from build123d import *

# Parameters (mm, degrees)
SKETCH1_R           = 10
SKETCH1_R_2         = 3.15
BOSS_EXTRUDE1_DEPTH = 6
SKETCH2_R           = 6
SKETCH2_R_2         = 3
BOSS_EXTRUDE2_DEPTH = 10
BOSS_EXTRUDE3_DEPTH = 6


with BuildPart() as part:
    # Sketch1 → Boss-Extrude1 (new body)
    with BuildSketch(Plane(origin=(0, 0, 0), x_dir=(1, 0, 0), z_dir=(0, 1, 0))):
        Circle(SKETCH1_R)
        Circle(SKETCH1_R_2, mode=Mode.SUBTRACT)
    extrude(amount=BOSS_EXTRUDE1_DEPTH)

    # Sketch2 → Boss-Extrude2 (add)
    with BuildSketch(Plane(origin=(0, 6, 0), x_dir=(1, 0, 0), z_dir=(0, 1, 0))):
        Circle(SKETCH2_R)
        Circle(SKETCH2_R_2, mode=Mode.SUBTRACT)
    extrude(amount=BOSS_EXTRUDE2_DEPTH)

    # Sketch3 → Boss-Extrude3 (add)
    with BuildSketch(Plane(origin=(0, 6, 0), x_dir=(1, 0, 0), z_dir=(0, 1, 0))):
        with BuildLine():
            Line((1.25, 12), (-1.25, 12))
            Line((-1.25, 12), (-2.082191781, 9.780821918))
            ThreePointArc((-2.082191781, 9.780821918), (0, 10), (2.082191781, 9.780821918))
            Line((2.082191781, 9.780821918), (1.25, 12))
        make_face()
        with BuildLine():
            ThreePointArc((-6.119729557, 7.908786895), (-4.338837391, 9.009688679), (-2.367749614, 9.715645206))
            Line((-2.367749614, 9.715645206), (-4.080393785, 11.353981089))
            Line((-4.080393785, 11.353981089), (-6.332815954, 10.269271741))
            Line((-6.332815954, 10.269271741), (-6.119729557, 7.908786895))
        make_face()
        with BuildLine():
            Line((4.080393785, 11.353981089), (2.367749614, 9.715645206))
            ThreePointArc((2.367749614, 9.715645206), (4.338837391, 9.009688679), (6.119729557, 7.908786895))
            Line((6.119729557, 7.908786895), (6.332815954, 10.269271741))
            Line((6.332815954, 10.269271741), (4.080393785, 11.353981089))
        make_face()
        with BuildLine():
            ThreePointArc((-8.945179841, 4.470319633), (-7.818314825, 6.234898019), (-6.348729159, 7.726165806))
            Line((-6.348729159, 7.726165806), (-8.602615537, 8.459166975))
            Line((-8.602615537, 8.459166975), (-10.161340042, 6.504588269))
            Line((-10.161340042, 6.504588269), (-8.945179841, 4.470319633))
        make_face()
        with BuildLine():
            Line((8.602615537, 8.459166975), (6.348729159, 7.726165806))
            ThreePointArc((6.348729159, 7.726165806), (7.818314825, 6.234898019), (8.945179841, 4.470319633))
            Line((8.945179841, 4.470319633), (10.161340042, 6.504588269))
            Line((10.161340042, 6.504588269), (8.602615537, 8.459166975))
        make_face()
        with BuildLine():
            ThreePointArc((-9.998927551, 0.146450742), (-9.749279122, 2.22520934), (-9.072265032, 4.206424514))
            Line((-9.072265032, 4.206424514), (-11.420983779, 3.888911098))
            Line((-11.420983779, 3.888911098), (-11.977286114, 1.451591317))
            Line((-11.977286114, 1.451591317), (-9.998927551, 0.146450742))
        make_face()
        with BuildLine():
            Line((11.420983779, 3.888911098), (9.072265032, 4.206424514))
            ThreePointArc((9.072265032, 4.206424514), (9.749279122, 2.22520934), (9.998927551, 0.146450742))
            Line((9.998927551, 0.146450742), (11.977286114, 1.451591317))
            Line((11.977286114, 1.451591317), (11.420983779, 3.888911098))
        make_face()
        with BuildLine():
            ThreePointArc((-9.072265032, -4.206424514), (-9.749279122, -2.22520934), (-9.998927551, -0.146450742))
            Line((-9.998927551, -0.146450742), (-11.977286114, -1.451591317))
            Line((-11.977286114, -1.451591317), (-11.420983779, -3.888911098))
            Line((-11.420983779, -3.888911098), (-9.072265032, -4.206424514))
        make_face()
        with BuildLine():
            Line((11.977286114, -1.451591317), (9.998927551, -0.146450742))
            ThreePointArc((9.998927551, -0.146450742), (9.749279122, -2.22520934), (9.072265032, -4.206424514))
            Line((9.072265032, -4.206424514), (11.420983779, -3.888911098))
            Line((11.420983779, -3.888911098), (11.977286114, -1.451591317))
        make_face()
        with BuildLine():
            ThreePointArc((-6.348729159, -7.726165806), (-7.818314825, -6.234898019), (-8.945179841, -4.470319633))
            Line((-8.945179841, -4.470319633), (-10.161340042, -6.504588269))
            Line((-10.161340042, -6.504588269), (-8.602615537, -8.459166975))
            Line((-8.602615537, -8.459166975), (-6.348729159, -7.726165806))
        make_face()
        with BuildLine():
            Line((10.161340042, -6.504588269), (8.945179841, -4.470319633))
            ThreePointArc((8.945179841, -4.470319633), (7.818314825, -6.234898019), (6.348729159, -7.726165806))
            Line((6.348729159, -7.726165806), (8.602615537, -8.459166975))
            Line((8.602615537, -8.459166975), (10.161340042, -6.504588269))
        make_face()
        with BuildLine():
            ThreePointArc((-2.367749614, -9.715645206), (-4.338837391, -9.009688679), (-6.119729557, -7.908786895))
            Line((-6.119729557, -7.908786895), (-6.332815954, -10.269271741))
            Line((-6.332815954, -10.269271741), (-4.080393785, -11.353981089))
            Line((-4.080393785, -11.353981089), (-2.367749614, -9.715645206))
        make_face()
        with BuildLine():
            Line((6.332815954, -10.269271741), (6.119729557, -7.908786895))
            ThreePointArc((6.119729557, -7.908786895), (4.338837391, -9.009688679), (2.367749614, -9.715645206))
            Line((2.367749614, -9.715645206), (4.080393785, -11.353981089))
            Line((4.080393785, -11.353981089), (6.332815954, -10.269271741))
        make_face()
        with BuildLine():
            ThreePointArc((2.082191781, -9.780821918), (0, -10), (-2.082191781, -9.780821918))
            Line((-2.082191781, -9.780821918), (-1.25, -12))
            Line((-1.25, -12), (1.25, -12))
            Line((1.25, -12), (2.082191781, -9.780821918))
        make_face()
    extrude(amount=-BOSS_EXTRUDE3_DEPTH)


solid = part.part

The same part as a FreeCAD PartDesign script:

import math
import FreeCAD as App
import Part
import Sketcher
from FreeCAD import Vector

doc = App.newDocument("Part")
body = doc.addObject("PartDesign::Body", "Body")

# Sketch on XZ plane
sketch1 = body.newObject("Sketcher::SketchObject", "Sketch")
sketch1.AttachmentSupport = (doc.getObject("XZ_Plane"), [""])
sketch1.MapMode = "FlatFace"
sketch1.addGeometry([
    Part.Circle(Vector(0, 0, 0), Vector(0, 0, 1), 10),
    Part.Circle(Vector(0, 0, 0), Vector(0, 0, 1), 3.1),
], False)
sketch1.addConstraint([
    Sketcher.Constraint("Coincident", 0, 3, -1, 1),
    Sketcher.Constraint("Coincident", 1, 3, -1, 1),
    Sketcher.Constraint("Diameter", 0, 20.0),
    Sketcher.Constraint("Diameter", 1, 6.3),
])
pad1 = body.newObject("PartDesign::Pad", "Pad")
pad1.Profile = sketch1
pad1.Length = 6
pad1.Reversed = True

# Sketch on XZ plane
sketch2 = body.newObject("Sketcher::SketchObject", "Sketch001")
sketch2.AttachmentSupport = (doc.getObject("XZ_Plane"), [""])
sketch2.MapMode = "FlatFace"
sketch2.AttachmentOffset = App.Placement(Vector(0, 0, -6), App.Rotation())
sketch2.addGeometry([
    Part.Circle(Vector(0, 0, 0), Vector(0, 0, 1), 6),
    Part.Circle(Vector(0, 0, 0), Vector(0, 0, 1), 3),
], False)
sketch2.addConstraint([
    Sketcher.Constraint("Coincident", 0, 3, -1, 1),
    Sketcher.Constraint("Coincident", 1, 3, -1, 1),
    Sketcher.Constraint("Diameter", 0, 12.0),
    Sketcher.Constraint("Diameter", 1, 6.0),
])
pad2 = body.newObject("PartDesign::Pad", "Pad001")
pad2.Profile = sketch2
pad2.Length = 10
pad2.Reversed = True

# Sketch on XZ plane
sketch3 = body.newObject("Sketcher::SketchObject", "Sketch002")
sketch3.AttachmentSupport = (doc.getObject("XZ_Plane"), [""])
sketch3.MapMode = "FlatFace"
sketch3.AttachmentOffset = App.Placement(Vector(0, 0, -6), App.Rotation())
sketch3.addGeometry([
    Part.LineSegment(Vector(1.2, -12, 0), Vector(-1.2, -12, 0)),  # 0
    Part.LineSegment(Vector(-1.2, -12, 0), Vector(-2.1, -9.8, 0)),  # 1
    Part.ArcOfCircle(Part.Circle(Vector(0, 0, 0), Vector(0, 0, 1), 10), math.radians(-102), math.radians(-78)),  # 2
    Part.LineSegment(Vector(2.1, -9.8, 0), Vector(1.2, -12, 0)),  # 3
    Part.ArcOfCircle(Part.Circle(Vector(0, 0, 0), Vector(0, 0, 1), 10), math.radians(-128), math.radians(-104)),  # 4
    Part.LineSegment(Vector(-2.4, -9.7, 0), Vector(-4.1, -11.4, 0)),  # 5
    Part.LineSegment(Vector(-4.1, -11.4, 0), Vector(-6.3, -10.3, 0)),  # 6
    Part.LineSegment(Vector(-6.3, -10.3, 0), Vector(-6.1, -7.9, 0)),  # 7
    Part.LineSegment(Vector(4.1, -11.4, 0), Vector(2.4, -9.7, 0)),  # 8
    Part.ArcOfCircle(Part.Circle(Vector(0, 0, 0), Vector(0, 0, 1), 10), math.radians(-76), math.radians(-52)),  # 9
    Part.LineSegment(Vector(6.1, -7.9, 0), Vector(6.3, -10.3, 0)),  # 10
    Part.LineSegment(Vector(6.3, -10.3, 0), Vector(4.1, -11.4, 0)),  # 11
    Part.ArcOfCircle(Part.Circle(Vector(0, 0, 0), Vector(0, 0, 1), 10), math.radians(-153), math.radians(-129)),  # 12
    Part.LineSegment(Vector(-6.3, -7.7, 0), Vector(-8.6, -8.5, 0)),  # 13
    Part.LineSegment(Vector(-8.6, -8.5, 0), Vector(-10.2, -6.5, 0)),  # 14
    Part.LineSegment(Vector(-10.2, -6.5, 0), Vector(-8.9, -4.5, 0)),  # 15
    Part.LineSegment(Vector(8.6, -8.5, 0), Vector(6.3, -7.7, 0)),  # 16
    Part.ArcOfCircle(Part.Circle(Vector(0, 0, 0), Vector(0, 0, 1), 10), math.radians(-51), math.radians(-27)),  # 17
    Part.LineSegment(Vector(8.9, -4.5, 0), Vector(10.2, -6.5, 0)),  # 18
    Part.LineSegment(Vector(10.2, -6.5, 0), Vector(8.6, -8.5, 0)),  # 19
    Part.ArcOfCircle(Part.Circle(Vector(0, 0, 0), Vector(0, 0, 1), 10), math.radians(-179), math.radians(-155)),  # 20
    Part.LineSegment(Vector(-9.1, -4.2, 0), Vector(-11.4, -3.9, 0)),  # 21
    Part.LineSegment(Vector(-11.4, -3.9, 0), Vector(-12, -1.5, 0)),  # 22
    Part.LineSegment(Vector(-12, -1.5, 0), Vector(-10, -0.1, 0)),  # 23
    Part.LineSegment(Vector(11.4, -3.9, 0), Vector(9.1, -4.2, 0)),  # 24
    Part.ArcOfCircle(Part.Circle(Vector(0, 0, 0), Vector(0, 0, 1), 10), math.radians(-25), math.radians(-1)),  # 25
    Part.LineSegment(Vector(10, -0.1, 0), Vector(12, -1.5, 0)),  # 26
    Part.LineSegment(Vector(12, -1.5, 0), Vector(11.4, -3.9, 0)),  # 27
    Part.ArcOfCircle(Part.Circle(Vector(0, 0, 0), Vector(0, 0, 1), 10), math.radians(155), math.radians(179)),  # 28
    Part.LineSegment(Vector(-10, 0.1, 0), Vector(-12, 1.5, 0)),  # 29
    Part.LineSegment(Vector(-12, 1.5, 0), Vector(-11.4, 3.9, 0)),  # 30
    Part.LineSegment(Vector(-11.4, 3.9, 0), Vector(-9.1, 4.2, 0)),  # 31
    Part.LineSegment(Vector(12, 1.5, 0), Vector(10, 0.1, 0)),  # 32
    Part.ArcOfCircle(Part.Circle(Vector(0, 0, 0), Vector(0, 0, 1), 10), math.radians(1), math.radians(25)),  # 33
    Part.LineSegment(Vector(9.1, 4.2, 0), Vector(11.4, 3.9, 0)),  # 34
    Part.LineSegment(Vector(11.4, 3.9, 0), Vector(12, 1.5, 0)),  # 35
    Part.ArcOfCircle(Part.Circle(Vector(0, 0, 0), Vector(0, 0, 1), 10), math.radians(129), math.radians(153)),  # 36
    Part.LineSegment(Vector(-8.9, 4.5, 0), Vector(-10.2, 6.5, 0)),  # 37
    Part.LineSegment(Vector(-10.2, 6.5, 0), Vector(-8.6, 8.5, 0)),  # 38
    Part.LineSegment(Vector(-8.6, 8.5, 0), Vector(-6.3, 7.7, 0)),  # 39
    Part.LineSegment(Vector(10.2, 6.5, 0), Vector(8.9, 4.5, 0)),  # 40
    Part.ArcOfCircle(Part.Circle(Vector(0, 0, 0), Vector(0, 0, 1), 10), math.radians(27), math.radians(51)),  # 41
    Part.LineSegment(Vector(6.3, 7.7, 0), Vector(8.6, 8.5, 0)),  # 42
    Part.LineSegment(Vector(8.6, 8.5, 0), Vector(10.2, 6.5, 0)),  # 43
    Part.ArcOfCircle(Part.Circle(Vector(0, 0, 0), Vector(0, 0, 1), 10), math.radians(104), math.radians(128)),  # 44
    Part.LineSegment(Vector(-6.1, 7.9, 0), Vector(-6.3, 10.3, 0)),  # 45
    Part.LineSegment(Vector(-6.3, 10.3, 0), Vector(-4.1, 11.4, 0)),  # 46
    Part.LineSegment(Vector(-4.1, 11.4, 0), Vector(-2.4, 9.7, 0)),  # 47
    Part.LineSegment(Vector(6.3, 10.3, 0), Vector(6.1, 7.9, 0)),  # 48
    Part.ArcOfCircle(Part.Circle(Vector(0, 0, 0), Vector(0, 0, 1), 10), math.radians(52), math.radians(76)),  # 49
    Part.LineSegment(Vector(2.4, 9.7, 0), Vector(4.1, 11.4, 0)),  # 50
    Part.LineSegment(Vector(4.1, 11.4, 0), Vector(6.3, 10.3, 0)),  # 51
    Part.ArcOfCircle(Part.Circle(Vector(0, 0, 0), Vector(0, 0, 1), 10), math.radians(78), math.radians(102)),  # 52
    Part.LineSegment(Vector(-2.1, 9.8, 0), Vector(-1.2, 12, 0)),  # 53
    Part.LineSegment(Vector(-1.2, 12, 0), Vector(1.2, 12, 0)),  # 54
    Part.LineSegment(Vector(1.2, 12, 0), Vector(2.1, 9.8, 0)),  # 55
], False)
sketch3.addConstraint([
    Sketcher.Constraint("Coincident", 0, 2, 1, 1),
    Sketcher.Constraint("Coincident", 1, 2, 2, 1),
    Sketcher.Constraint("Coincident", 2, 2, 3, 1),
    Sketcher.Constraint("Coincident", 3, 2, 0, 1),
    Sketcher.Constraint("Coincident", 4, 2, 5, 1),
    Sketcher.Constraint("Coincident", 5, 2, 6, 1),
    Sketcher.Constraint("Coincident", 6, 2, 7, 1),
    Sketcher.Constraint("Coincident", 7, 2, 4, 1),
    Sketcher.Constraint("Coincident", 8, 2, 9, 1),
    Sketcher.Constraint("Coincident", 9, 2, 10, 1),
    Sketcher.Constraint("Coincident", 10, 2, 11, 1),
    Sketcher.Constraint("Coincident", 11, 2, 8, 1),
    Sketcher.Constraint("Coincident", 12, 2, 13, 1),
    Sketcher.Constraint("Coincident", 13, 2, 14, 1),
    Sketcher.Constraint("Coincident", 14, 2, 15, 1),
    Sketcher.Constraint("Coincident", 15, 2, 12, 1),
    Sketcher.Constraint("Coincident", 16, 2, 17, 1),
    Sketcher.Constraint("Coincident", 17, 2, 18, 1),
    Sketcher.Constraint("Coincident", 18, 2, 19, 1),
    Sketcher.Constraint("Coincident", 19, 2, 16, 1),
    Sketcher.Constraint("Coincident", 20, 2, 21, 1),
    Sketcher.Constraint("Coincident", 21, 2, 22, 1),
    Sketcher.Constraint("Coincident", 22, 2, 23, 1),
    Sketcher.Constraint("Coincident", 23, 2, 20, 1),
    Sketcher.Constraint("Coincident", 24, 2, 25, 1),
    Sketcher.Constraint("Coincident", 25, 2, 26, 1),
    Sketcher.Constraint("Coincident", 26, 2, 27, 1),
    Sketcher.Constraint("Coincident", 27, 2, 24, 1),
    Sketcher.Constraint("Coincident", 28, 2, 29, 1),
    Sketcher.Constraint("Coincident", 29, 2, 30, 1),
    Sketcher.Constraint("Coincident", 30, 2, 31, 1),
    Sketcher.Constraint("Coincident", 31, 2, 28, 1),
    Sketcher.Constraint("Coincident", 32, 2, 33, 1),
    Sketcher.Constraint("Coincident", 33, 2, 34, 1),
    Sketcher.Constraint("Coincident", 34, 2, 35, 1),
    Sketcher.Constraint("Coincident", 35, 2, 32, 1),
    Sketcher.Constraint("Coincident", 36, 2, 37, 1),
    Sketcher.Constraint("Coincident", 37, 2, 38, 1),
    Sketcher.Constraint("Coincident", 38, 2, 39, 1),
    Sketcher.Constraint("Coincident", 39, 2, 36, 1),
    Sketcher.Constraint("Coincident", 40, 2, 41, 1),
    Sketcher.Constraint("Coincident", 41, 2, 42, 1),
    Sketcher.Constraint("Coincident", 42, 2, 43, 1),
    Sketcher.Constraint("Coincident", 43, 2, 40, 1),
    Sketcher.Constraint("Coincident", 44, 2, 45, 1),
    Sketcher.Constraint("Coincident", 45, 2, 46, 1),
    Sketcher.Constraint("Coincident", 46, 2, 47, 1),
    Sketcher.Constraint("Coincident", 47, 2, 44, 1),
    Sketcher.Constraint("Coincident", 48, 2, 49, 1),
    Sketcher.Constraint("Coincident", 49, 2, 50, 1),
    Sketcher.Constraint("Coincident", 50, 2, 51, 1),
    Sketcher.Constraint("Coincident", 51, 2, 48, 1),
    Sketcher.Constraint("Coincident", 52, 2, 53, 1),
    Sketcher.Constraint("Coincident", 53, 2, 54, 1),
    Sketcher.Constraint("Coincident", 54, 2, 55, 1),
    Sketcher.Constraint("Coincident", 55, 2, 52, 1),
    Sketcher.Constraint("Horizontal", 0),
    Sketcher.Constraint("Horizontal", 54),
    Sketcher.Constraint("Coincident", 2, 3, -1, 1),
    Sketcher.Constraint("Coincident", 4, 3, -1, 1),
    Sketcher.Constraint("Coincident", 9, 3, -1, 1),
    Sketcher.Constraint("Coincident", 12, 3, -1, 1),
    Sketcher.Constraint("Coincident", 17, 3, -1, 1),
    Sketcher.Constraint("Coincident", 20, 3, -1, 1),
    Sketcher.Constraint("Coincident", 25, 3, -1, 1),
    Sketcher.Constraint("Coincident", 28, 3, -1, 1),
    Sketcher.Constraint("Coincident", 33, 3, -1, 1),
    Sketcher.Constraint("Coincident", 36, 3, -1, 1),
    Sketcher.Constraint("Coincident", 41, 3, -1, 1),
    Sketcher.Constraint("Coincident", 44, 3, -1, 1),
    Sketcher.Constraint("Coincident", 49, 3, -1, 1),
    Sketcher.Constraint("Coincident", 52, 3, -1, 1),
    Sketcher.Constraint("Equal", 2, 4),
    Sketcher.Constraint("Equal", 4, 9),
    Sketcher.Constraint("Equal", 9, 12),
    Sketcher.Constraint("Equal", 12, 17),
    Sketcher.Constraint("Equal", 17, 20),
    Sketcher.Constraint("Equal", 20, 25),
    Sketcher.Constraint("Equal", 25, 28),
    Sketcher.Constraint("Equal", 28, 33),
    Sketcher.Constraint("Equal", 33, 36),
    Sketcher.Constraint("Equal", 36, 41),
    Sketcher.Constraint("Equal", 41, 44),
    Sketcher.Constraint("Equal", 44, 49),
    Sketcher.Constraint("Equal", 49, 52),
    Sketcher.Constraint("Symmetric", 26, 2, 29, 2, -1, 1),
    Sketcher.Constraint("Symmetric", 27, 2, 30, 2, -1, 1),
    Sketcher.Constraint("Symmetric", 21, 2, 34, 2, -1, 1),
    Sketcher.Constraint("Symmetric", 22, 2, 35, 2, -1, 1),
    Sketcher.Constraint("Symmetric", 18, 2, 37, 2, -1, 1),
    Sketcher.Constraint("Symmetric", 19, 2, 38, 2, -1, 1),
    Sketcher.Constraint("Symmetric", 13, 2, 42, 2, -1, 1),
    Sketcher.Constraint("Symmetric", 14, 2, 43, 2, -1, 1),
    Sketcher.Constraint("Symmetric", 10, 2, 45, 2, -1, 1),
    Sketcher.Constraint("Symmetric", 11, 2, 46, 2, -1, 1),
    Sketcher.Constraint("Symmetric", 5, 2, 50, 2, -1, 1),
    Sketcher.Constraint("Symmetric", 6, 2, 51, 2, -1, 1),
    Sketcher.Constraint("Symmetric", 3, 2, 53, 2, -1, 1),
    Sketcher.Constraint("Symmetric", 6, 2, 10, 2, -2),
    Sketcher.Constraint("Symmetric", 5, 2, 11, 2, -2),
    Sketcher.Constraint("Symmetric", 14, 2, 18, 2, -2),
    Sketcher.Constraint("Symmetric", 13, 2, 19, 2, -2),
    Sketcher.Constraint("Symmetric", 22, 2, 26, 2, -2),
    Sketcher.Constraint("Symmetric", 21, 2, 27, 2, -2),
    Sketcher.Constraint("Parallel", 26, 29),
    Sketcher.Constraint("Parallel", 24, 31),
    Sketcher.Constraint("Parallel", 23, 32),
    Sketcher.Constraint("Parallel", 21, 34),
    Sketcher.Constraint("Parallel", 18, 37),
    Sketcher.Constraint("Parallel", 16, 39),
    Sketcher.Constraint("Parallel", 15, 40),
    Sketcher.Constraint("Parallel", 13, 42),
    Sketcher.Constraint("Parallel", 10, 45),
    Sketcher.Constraint("Parallel", 8, 47),
    Sketcher.Constraint("Parallel", 7, 48),
    Sketcher.Constraint("Parallel", 5, 50),
    Sketcher.Constraint("Parallel", 3, 53),
    Sketcher.Constraint("Parallel", 1, 55),
    Sketcher.Constraint("Horizontal", 1, 2, 2, 2),
    Sketcher.Constraint("Horizontal", 4, 2, 8, 2),
    Sketcher.Constraint("Horizontal", 7, 2, 9, 2),
    Sketcher.Constraint("Horizontal", 12, 2, 16, 2),
    Sketcher.Constraint("Horizontal", 15, 2, 17, 2),
    Sketcher.Constraint("Horizontal", 20, 2, 24, 2),
    Sketcher.Constraint("Horizontal", 23, 2, 25, 2),
    Sketcher.Constraint("Horizontal", 52, 2, 55, 2),
    Sketcher.Constraint("Vertical", 0, 2, 53, 2),
    Sketcher.Constraint("Equal", 3, 5),
    Sketcher.Constraint("Equal", 5, 7),
    Sketcher.Constraint("Equal", 10, 13),
    Sketcher.Constraint("Equal", 11, 14),
    Sketcher.Constraint("Equal", 13, 15),
    Sketcher.Constraint("Equal", 18, 21),
    Sketcher.Constraint("Equal", 19, 22),
    Sketcher.Constraint("Equal", 21, 23),
    Sketcher.Constraint("Radius", 2, 10.0),
    Sketcher.Constraint("DistanceX", 0, 2, 0, 1, 2.5),
    Sketcher.Constraint("DistanceY", 0, 2, -1, 1, 12.0),
    Sketcher.Constraint("Distance", 6, 2.5),
    Sketcher.Constraint("DistanceX", 1, 2, -1, 1, 2.082192),
    Sketcher.Constraint("DistanceX", 4, 2, -1, 1, 2.36775),
    Sketcher.Constraint("DistanceY", 5, 2, -1, 1, 11.353981),
    Sketcher.Constraint("DistanceY", 6, 2, -1, 1, 10.269272),
    Sketcher.Constraint("DistanceX", 12, 2, -1, 1, 6.348729),
    Sketcher.Constraint("DistanceX", 14, 2, -1, 1, 10.16134),
    Sketcher.Constraint("DistanceY", 14, 2, -1, 1, 6.504588),
    Sketcher.Constraint("DistanceY", 21, 2, -1, 1, 3.888911),
    Sketcher.Constraint("DistanceY", 22, 2, -1, 1, 1.451591),
    Sketcher.Constraint("DistanceY", 23, 2, -1, 1, 0.146451),
])
pad3 = body.newObject("PartDesign::Pad", "Pad002")
pad3.Profile = sketch3
pad3.Length = 6

doc.recompute()
